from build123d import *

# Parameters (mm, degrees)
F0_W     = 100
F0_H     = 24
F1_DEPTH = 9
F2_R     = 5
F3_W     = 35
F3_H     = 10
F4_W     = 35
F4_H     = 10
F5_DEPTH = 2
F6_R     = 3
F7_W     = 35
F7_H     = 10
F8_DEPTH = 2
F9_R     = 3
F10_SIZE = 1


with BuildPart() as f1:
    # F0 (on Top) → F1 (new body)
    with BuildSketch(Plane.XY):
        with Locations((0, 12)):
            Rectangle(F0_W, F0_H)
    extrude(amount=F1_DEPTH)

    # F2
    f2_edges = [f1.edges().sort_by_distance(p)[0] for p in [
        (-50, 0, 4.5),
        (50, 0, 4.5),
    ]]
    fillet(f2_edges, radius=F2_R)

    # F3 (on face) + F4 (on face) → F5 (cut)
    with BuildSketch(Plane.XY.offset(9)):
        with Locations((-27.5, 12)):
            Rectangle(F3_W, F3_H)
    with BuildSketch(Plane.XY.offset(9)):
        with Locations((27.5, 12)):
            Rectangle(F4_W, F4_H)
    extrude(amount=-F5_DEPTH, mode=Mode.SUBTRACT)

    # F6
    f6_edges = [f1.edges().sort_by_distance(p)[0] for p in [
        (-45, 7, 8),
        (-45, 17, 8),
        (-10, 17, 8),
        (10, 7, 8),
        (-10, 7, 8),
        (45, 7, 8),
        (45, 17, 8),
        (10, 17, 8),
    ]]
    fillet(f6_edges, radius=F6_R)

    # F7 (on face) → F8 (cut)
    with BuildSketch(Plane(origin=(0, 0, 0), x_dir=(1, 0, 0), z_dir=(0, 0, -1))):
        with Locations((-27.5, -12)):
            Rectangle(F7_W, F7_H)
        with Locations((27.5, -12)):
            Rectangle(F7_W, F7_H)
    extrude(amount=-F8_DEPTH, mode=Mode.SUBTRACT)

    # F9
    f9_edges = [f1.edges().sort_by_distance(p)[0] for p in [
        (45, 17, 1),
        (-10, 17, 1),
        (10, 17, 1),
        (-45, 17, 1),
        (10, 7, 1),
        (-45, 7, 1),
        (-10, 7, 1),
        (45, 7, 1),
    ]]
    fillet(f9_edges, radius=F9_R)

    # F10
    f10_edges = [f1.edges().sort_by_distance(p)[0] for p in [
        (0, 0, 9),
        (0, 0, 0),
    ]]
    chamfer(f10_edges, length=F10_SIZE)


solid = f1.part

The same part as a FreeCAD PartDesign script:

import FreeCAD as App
import Part
import Sketcher

V = App.Vector


def edges_at(feature, points):
    """Names of the edges that pass closest to the given points."""
    edges = feature.Shape.Edges
    near = lambda p: min(range(len(edges)), key=lambda i: edges[i].distToShape(Part.Vertex(*p))[0])
    return sorted({f"Edge{near(p) + 1}" for p in points})


def add_polygon(sketch, points):
    """Adds a closed chain of lines whose ends are joined by coincident constraints."""
    first, n = sketch.GeometryCount, len(points)
    for a, b in zip(points, points[1:] + points[:1]):
        sketch.addGeometry(Part.LineSegment(App.Vector(*a, 0), App.Vector(*b, 0)), False)
    for i in range(n):
        sketch.addConstraint(Sketcher.Constraint("Coincident", first + i, 2, first + (i + 1) % n, 1))

doc = App.newDocument("Part")
body = doc.addObject("PartDesign::Body", "Body")

sketch1 = doc.addObject("Sketcher::SketchObject", "Sketch")
body.addObject(sketch1)
sketch1.AttachmentSupport = (doc.XY_Plane, [""])
sketch1.MapMode = "FlatFace"
add_polygon(sketch1, [(-50, 24), (-50, 0), (50, 0), (50, 24)])
sketch1.addConstraint([
    Sketcher.Constraint("Vertical", 0),
    Sketcher.Constraint("Horizontal", 1),
    Sketcher.Constraint("Vertical", 2),
    Sketcher.Constraint("Horizontal", 3),
    Sketcher.Constraint("Symmetric", 0, 2, 1, 2, -1, 1),
    Sketcher.Constraint("DistanceX", 1, 1, 1, 2, 100.0),
    Sketcher.Constraint("DistanceY", 0, 2, 0, 1, 24.0),
])
pad1 = doc.addObject("PartDesign::Pad", "Pad")
body.addObject(pad1)
pad1.Profile = sketch1
pad1.Length = 9
doc.recompute()

fillet = doc.addObject("PartDesign::Fillet", "Fillet")
body.addObject(fillet)
fillet.Base = (pad1, edges_at(pad1, [(-50, 0, 4.5), (50, 0, 4.5)]))
fillet.Radius = 5

sketch2 = doc.addObject("Sketcher::SketchObject", "Sketch001")
body.addObject(sketch2)
sketch2.AttachmentSupport = (doc.XY_Plane, [""])
sketch2.MapMode = "FlatFace"
sketch2.AttachmentOffset = App.Placement(V(0, 0, 9), App.Rotation())
add_polygon(sketch2, [(-45, 17), (-45, 7), (-10, 7), (-10, 17)])
add_polygon(sketch2, [(10, 17), (10, 7), (45, 7), (45, 17)])
sketch2.addConstraint([
    Sketcher.Constraint("Vertical", 0),
    Sketcher.Constraint("Horizontal", 1),
    Sketcher.Constraint("Vertical", 2),
    Sketcher.Constraint("Horizontal", 3),
    Sketcher.Constraint("Vertical", 4),
    Sketcher.Constraint("Horizontal", 5),
    Sketcher.Constraint("Vertical", 6),
    Sketcher.Constraint("Horizontal", 7),
    Sketcher.Constraint("Symmetric", 1, 2, 4, 2, -2),
    Sketcher.Constraint("Symmetric", 3, 2, 6, 2, -2),
    Sketcher.Constraint("DistanceX", 1, 1, 1, 2, 35.0),
    Sketcher.Constraint("DistanceY", 0, 2, 0, 1, 10.0),
    Sketcher.Constraint("DistanceX", 0, 2, -1, 1, 45.0),
    Sketcher.Constraint("DistanceY", -1, 1, 0, 2, 7.0),
])
pocket1 = doc.addObject("PartDesign::Pocket", "Pocket")
body.addObject(pocket1)
pocket1.Profile = sketch2
pocket1.Length = 2
doc.recompute()

fillet2 = doc.addObject("PartDesign::Fillet", "Fillet001")
body.addObject(fillet2)
fillet2.Base = (pocket1, edges_at(pocket1, [
    (-45, 7, 8),
    (-45, 17, 8),
    (-10, 17, 8),
    (10, 7, 8),
    (-10, 7, 8),
    (45, 7, 8),
    (45, 17, 8),
    (10, 17, 8),
]))
fillet2.Radius = 3

sketch3 = doc.addObject("Sketcher::SketchObject", "Sketch002")
body.addObject(sketch3)
sketch3.AttachmentSupport = (doc.XY_Plane, [""])
sketch3.MapMode = "FlatFace"
add_polygon(sketch3, [(-45, 7), (-45, 17), (-10, 17), (-10, 7)])
add_polygon(sketch3, [(10, 7), (10, 17), (45, 17), (45, 7)])
sketch3.addConstraint([
    Sketcher.Constraint("Vertical", 0),
    Sketcher.Constraint("Horizontal", 1),
    Sketcher.Constraint("Vertical", 2),
    Sketcher.Constraint("Horizontal", 3),
    Sketcher.Constraint("Vertical", 4),
    Sketcher.Constraint("Horizontal", 5),
    Sketcher.Constraint("Vertical", 6),
    Sketcher.Constraint("Horizontal", 7),
    Sketcher.Constraint("Symmetric", 1, 2, 4, 2, -2),
    Sketcher.Constraint("Symmetric", 3, 2, 6, 2, -2),
    Sketcher.Constraint("DistanceX", 1, 1, 1, 2, 35.0),
    Sketcher.Constraint("DistanceY", 0, 1, 0, 2, 10.0),
    Sketcher.Constraint("DistanceX", 0, 2, -1, 1, 45.0),
    Sketcher.Constraint("DistanceY", -1, 1, 0, 2, 17.0),
])
pocket2 = doc.addObject("PartDesign::Pocket", "Pocket001")
body.addObject(pocket2)
pocket2.Profile = sketch3
pocket2.Length = 2
pocket2.Reversed = True
doc.recompute()

fillet3 = doc.addObject("PartDesign::Fillet", "Fillet002")
body.addObject(fillet3)
fillet3.Base = (pocket2, edges_at(pocket2, [
    (45, 17, 1),
    (-10, 17, 1),
    (10, 17, 1),
    (-45, 17, 1),
    (10, 7, 1),
    (-45, 7, 1),
    (-10, 7, 1),
    (45, 7, 1),
]))
fillet3.Radius = 3
doc.recompute()

chamfer = doc.addObject("PartDesign::Chamfer", "Chamfer")
body.addObject(chamfer)
chamfer.Base = (fillet3, edges_at(fillet3, [(0, 0, 9), (0, 0, 0)]))
chamfer.Size = 1

doc.recompute()
